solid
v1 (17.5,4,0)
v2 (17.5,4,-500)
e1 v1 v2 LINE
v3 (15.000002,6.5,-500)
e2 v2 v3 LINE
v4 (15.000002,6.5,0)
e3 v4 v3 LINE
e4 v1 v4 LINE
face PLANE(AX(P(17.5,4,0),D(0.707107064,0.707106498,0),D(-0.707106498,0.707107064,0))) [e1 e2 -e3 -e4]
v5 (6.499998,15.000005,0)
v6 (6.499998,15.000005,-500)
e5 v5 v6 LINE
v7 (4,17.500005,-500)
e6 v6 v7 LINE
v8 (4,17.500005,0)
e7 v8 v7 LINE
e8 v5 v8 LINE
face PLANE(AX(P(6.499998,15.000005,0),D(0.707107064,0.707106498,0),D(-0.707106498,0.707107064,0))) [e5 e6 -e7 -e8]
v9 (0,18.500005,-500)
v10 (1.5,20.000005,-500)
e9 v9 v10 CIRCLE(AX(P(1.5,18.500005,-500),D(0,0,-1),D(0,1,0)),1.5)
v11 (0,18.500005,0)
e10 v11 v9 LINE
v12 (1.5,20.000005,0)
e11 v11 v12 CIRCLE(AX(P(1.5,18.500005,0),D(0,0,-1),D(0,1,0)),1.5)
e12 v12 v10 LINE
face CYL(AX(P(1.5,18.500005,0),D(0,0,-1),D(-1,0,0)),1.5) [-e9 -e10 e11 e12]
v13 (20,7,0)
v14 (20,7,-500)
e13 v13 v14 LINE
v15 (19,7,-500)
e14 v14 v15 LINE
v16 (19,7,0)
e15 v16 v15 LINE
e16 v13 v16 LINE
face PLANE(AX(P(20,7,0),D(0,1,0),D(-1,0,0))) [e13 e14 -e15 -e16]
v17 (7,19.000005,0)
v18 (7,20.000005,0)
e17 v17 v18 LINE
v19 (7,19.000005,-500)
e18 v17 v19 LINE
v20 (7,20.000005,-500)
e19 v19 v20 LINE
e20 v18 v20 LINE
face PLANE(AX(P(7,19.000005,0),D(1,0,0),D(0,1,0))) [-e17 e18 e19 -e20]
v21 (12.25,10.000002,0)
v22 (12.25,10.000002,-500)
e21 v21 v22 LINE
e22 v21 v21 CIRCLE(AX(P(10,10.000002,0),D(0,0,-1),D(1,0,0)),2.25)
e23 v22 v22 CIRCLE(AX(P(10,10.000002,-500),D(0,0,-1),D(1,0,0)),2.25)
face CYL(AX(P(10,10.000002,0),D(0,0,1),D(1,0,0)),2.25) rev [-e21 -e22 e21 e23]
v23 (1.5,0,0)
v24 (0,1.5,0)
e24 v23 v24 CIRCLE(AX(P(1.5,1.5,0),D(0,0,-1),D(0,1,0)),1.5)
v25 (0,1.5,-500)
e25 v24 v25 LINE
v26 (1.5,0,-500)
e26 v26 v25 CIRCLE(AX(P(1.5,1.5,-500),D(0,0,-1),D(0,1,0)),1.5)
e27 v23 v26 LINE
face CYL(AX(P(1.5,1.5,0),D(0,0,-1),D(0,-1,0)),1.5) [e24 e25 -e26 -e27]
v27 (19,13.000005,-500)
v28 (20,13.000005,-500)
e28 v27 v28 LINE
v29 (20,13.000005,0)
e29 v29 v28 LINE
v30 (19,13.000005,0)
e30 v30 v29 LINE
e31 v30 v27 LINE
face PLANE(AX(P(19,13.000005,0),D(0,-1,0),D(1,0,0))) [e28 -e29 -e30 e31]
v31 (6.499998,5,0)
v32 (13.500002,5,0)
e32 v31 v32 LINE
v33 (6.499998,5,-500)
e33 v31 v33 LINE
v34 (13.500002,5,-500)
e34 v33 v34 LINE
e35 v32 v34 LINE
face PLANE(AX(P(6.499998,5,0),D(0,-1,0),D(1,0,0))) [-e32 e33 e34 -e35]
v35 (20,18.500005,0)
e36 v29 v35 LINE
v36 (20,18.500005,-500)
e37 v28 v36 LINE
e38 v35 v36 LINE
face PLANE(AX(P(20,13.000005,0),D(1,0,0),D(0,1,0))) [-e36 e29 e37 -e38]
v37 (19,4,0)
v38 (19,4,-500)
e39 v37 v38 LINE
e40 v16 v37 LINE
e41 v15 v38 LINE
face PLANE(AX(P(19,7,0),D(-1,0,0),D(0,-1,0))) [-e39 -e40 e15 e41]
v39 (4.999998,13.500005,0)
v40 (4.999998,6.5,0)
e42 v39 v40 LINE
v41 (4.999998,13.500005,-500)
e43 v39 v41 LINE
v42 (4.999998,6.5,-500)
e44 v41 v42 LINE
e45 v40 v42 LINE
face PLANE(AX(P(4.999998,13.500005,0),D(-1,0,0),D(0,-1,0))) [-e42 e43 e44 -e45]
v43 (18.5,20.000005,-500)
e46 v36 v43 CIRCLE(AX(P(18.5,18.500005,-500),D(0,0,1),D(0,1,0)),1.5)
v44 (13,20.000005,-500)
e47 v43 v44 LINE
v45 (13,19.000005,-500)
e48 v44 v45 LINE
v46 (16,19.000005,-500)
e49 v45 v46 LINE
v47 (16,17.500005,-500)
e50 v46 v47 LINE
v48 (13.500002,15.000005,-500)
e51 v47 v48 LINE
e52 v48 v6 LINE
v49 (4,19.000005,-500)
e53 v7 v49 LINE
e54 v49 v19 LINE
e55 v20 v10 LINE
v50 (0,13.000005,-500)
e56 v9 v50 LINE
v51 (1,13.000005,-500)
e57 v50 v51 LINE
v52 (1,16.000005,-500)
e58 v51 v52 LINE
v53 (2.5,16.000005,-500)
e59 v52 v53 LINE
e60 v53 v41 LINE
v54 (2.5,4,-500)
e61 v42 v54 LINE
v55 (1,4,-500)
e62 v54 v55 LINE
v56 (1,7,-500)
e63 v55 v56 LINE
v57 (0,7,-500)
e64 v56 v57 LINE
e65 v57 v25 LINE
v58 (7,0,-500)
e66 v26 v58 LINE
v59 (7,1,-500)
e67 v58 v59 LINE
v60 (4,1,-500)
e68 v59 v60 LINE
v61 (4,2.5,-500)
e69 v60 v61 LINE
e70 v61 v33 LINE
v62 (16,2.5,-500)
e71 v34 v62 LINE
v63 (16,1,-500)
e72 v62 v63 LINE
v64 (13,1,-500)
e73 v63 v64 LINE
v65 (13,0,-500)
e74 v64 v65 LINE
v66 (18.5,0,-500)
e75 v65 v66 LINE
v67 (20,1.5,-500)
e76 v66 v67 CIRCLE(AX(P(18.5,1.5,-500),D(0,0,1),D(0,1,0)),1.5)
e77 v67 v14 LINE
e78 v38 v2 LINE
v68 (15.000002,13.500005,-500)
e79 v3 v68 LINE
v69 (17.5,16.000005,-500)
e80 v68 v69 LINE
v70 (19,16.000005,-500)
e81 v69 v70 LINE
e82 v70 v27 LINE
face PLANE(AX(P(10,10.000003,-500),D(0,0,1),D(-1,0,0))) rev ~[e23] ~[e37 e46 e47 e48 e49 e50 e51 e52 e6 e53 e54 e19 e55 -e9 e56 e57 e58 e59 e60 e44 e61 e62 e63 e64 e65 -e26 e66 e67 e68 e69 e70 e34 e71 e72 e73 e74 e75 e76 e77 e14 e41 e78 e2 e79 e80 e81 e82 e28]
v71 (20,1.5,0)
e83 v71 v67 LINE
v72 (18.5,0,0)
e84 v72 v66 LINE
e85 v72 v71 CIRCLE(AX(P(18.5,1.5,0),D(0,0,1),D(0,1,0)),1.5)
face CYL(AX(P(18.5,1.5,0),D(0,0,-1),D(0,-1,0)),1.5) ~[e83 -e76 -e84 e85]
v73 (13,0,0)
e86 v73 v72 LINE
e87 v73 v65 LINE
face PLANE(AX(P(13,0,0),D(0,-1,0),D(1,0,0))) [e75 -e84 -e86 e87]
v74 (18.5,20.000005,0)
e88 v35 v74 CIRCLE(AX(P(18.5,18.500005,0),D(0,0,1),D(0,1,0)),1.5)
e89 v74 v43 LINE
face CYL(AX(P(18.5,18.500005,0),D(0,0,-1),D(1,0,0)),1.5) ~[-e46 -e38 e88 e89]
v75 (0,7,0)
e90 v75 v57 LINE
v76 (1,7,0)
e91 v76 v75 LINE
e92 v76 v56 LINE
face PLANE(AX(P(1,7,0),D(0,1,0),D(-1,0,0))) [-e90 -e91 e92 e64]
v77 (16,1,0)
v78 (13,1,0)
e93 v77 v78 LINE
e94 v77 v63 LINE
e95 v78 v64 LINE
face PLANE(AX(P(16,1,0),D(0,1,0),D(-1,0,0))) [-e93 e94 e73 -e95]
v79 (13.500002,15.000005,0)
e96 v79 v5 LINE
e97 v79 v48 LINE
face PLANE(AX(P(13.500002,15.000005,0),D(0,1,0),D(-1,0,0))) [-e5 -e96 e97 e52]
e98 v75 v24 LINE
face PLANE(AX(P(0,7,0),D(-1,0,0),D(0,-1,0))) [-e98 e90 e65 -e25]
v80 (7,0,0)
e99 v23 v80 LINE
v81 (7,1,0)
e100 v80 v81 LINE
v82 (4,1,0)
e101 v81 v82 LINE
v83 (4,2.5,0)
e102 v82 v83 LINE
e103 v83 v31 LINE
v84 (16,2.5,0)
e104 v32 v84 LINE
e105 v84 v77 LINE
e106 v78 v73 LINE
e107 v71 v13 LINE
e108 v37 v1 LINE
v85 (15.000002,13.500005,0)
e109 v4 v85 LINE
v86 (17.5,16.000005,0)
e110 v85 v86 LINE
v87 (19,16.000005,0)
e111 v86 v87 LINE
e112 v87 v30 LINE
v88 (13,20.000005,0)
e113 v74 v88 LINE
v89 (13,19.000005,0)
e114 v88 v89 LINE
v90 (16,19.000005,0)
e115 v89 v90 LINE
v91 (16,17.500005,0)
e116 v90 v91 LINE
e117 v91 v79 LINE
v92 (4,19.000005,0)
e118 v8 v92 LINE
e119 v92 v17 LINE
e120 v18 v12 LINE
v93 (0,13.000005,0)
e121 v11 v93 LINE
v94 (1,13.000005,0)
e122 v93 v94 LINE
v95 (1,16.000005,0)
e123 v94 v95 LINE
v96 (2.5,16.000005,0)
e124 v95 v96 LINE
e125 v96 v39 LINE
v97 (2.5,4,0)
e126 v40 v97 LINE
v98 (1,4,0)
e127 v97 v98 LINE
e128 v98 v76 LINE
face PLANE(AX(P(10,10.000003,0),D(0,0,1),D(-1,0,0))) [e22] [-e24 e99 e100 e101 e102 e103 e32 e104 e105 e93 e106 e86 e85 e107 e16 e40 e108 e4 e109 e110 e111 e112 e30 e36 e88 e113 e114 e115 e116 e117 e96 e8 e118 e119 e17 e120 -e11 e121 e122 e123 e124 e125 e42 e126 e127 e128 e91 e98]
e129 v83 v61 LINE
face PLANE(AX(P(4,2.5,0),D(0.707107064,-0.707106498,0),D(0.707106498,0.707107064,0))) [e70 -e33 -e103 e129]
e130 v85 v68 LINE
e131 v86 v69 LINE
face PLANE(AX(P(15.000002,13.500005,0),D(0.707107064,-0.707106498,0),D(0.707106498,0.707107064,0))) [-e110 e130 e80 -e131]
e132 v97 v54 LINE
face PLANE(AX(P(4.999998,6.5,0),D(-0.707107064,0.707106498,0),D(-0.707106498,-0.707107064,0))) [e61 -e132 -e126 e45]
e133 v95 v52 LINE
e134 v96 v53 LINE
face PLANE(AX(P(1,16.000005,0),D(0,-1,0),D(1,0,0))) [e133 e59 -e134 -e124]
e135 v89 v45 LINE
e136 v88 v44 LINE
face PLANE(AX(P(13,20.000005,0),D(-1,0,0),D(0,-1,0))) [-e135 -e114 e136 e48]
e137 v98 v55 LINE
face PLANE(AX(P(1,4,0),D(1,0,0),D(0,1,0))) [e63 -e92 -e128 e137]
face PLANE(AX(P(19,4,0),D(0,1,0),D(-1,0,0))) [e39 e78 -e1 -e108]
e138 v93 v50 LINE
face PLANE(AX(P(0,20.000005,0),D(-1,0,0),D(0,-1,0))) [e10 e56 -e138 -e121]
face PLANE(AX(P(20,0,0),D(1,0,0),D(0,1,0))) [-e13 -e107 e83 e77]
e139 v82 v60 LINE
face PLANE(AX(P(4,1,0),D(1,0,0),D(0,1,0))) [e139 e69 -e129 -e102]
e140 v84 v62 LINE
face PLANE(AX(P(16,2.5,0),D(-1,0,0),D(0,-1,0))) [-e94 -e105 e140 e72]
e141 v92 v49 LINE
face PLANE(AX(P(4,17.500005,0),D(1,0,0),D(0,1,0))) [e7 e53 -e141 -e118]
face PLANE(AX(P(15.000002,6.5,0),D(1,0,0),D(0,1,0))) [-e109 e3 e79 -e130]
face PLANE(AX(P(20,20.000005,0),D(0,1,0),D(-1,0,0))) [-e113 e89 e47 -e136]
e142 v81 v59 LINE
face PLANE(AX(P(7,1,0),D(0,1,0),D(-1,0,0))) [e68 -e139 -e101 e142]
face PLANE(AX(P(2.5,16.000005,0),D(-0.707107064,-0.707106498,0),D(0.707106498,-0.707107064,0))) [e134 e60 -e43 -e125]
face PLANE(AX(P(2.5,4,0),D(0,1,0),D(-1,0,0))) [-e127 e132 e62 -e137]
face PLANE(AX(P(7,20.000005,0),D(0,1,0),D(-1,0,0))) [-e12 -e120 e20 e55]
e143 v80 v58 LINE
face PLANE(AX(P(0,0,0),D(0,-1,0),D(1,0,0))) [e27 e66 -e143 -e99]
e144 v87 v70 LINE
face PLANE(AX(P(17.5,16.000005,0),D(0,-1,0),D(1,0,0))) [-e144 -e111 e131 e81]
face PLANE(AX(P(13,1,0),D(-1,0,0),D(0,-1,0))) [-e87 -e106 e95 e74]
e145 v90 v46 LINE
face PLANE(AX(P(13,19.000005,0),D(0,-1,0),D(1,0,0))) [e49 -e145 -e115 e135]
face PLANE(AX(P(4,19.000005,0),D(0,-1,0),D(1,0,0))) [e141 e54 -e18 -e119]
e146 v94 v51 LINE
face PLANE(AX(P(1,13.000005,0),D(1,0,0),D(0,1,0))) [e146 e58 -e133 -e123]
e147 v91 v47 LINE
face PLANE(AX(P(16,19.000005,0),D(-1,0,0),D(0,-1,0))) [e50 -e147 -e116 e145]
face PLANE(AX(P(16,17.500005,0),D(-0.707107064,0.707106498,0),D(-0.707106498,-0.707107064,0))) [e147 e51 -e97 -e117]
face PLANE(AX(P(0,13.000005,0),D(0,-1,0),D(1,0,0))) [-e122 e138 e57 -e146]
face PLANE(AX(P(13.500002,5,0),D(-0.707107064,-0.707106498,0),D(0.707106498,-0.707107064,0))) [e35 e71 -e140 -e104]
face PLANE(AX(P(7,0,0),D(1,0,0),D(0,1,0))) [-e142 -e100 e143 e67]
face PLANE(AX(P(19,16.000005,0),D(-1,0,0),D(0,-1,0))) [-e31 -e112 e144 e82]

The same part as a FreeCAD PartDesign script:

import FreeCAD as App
import Part
import Sketcher

V = App.Vector


def edges_at(feature, points):
    """Names of the edges that pass closest to the given points."""
    edges = feature.Shape.Edges
    near = lambda p: min(range(len(edges)), key=lambda i: edges[i].distToShape(Part.Vertex(*p))[0])
    return sorted({f"Edge{near(p) + 1}" for p in points})

doc = App.newDocument("Part")
body = doc.addObject("PartDesign::Body", "Body")

sketch1 = body.newObject("Sketcher::SketchObject", "Sketch")
sketch1.AttachmentSupport = (doc.getObject("XY_Plane"), [""])
sketch1.MapMode = "FlatFace"
sketch1.addGeometry([
    Part.LineSegment(V(7, 1, 0), V(7, 0, 0)),
    Part.LineSegment(V(7, 0, 0), V(0, 0, 0)),
    Part.LineSegment(V(0, 0, 0), V(0, 7, 0)),
    Part.LineSegment(V(0, 7, 0), V(1, 7, 0)),
    Part.LineSegment(V(1, 7, 0), V(1, 4, 0)),
    Part.LineSegment(V(1, 4, 0), V(2.5, 4, 0)),
    Part.LineSegment(V(2.5, 4, 0), V(5, 6.5, 0)),
    Part.LineSegment(V(5, 6.5, 0), V(5, 13.5, 0)),
    Part.LineSegment(V(5, 13.5, 0), V(2.5, 16, 0)),
    Part.LineSegment(V(2.5, 16, 0), V(1, 16, 0)),
    Part.LineSegment(V(1, 16, 0), V(1, 13, 0)),
    Part.LineSegment(V(1, 13, 0), V(0, 13, 0)),
    Part.LineSegment(V(0, 13, 0), V(0, 20, 0)),
    Part.LineSegment(V(0, 20, 0), V(7, 20, 0)),
    Part.LineSegment(V(7, 20, 0), V(7, 19, 0)),
    Part.LineSegment(V(7, 19, 0), V(4, 19, 0)),
    Part.LineSegment(V(4, 19, 0), V(4, 17.5, 0)),
    Part.LineSegment(V(4, 17.5, 0), V(6.5, 15, 0)),
    Part.LineSegment(V(6.5, 15, 0), V(13.5, 15, 0)),
    Part.LineSegment(V(13.5, 15, 0), V(16, 17.5, 0)),
    Part.LineSegment(V(16, 17.5, 0), V(16, 19, 0)),
    Part.LineSegment(V(16, 19, 0), V(13, 19, 0)),
    Part.LineSegment(V(13, 19, 0), V(13, 20, 0)),
    Part.LineSegment(V(13, 20, 0), V(20, 20, 0)),
    Part.LineSegment(V(20, 20, 0), V(20, 13, 0)),
    Part.LineSegment(V(20, 13, 0), V(19, 13, 0)),
    Part.LineSegment(V(19, 13, 0), V(19, 16, 0)),
    Part.LineSegment(V(19, 16, 0), V(17.5, 16, 0)),
    Part.LineSegment(V(17.5, 16, 0), V(15, 13.5, 0)),
    Part.LineSegment(V(15, 13.5, 0), V(15, 6.5, 0)),
    Part.LineSegment(V(15, 6.5, 0), V(17.5, 4, 0)),
    Part.LineSegment(V(17.5, 4, 0), V(19, 4, 0)),
    Part.LineSegment(V(19, 4, 0), V(19, 7, 0)),
    Part.LineSegment(V(19, 7, 0), V(20, 7, 0)),
    Part.LineSegment(V(20, 7, 0), V(20, 0, 0)),
    Part.LineSegment(V(20, 0, 0), V(13, 0, 0)),
    Part.LineSegment(V(13, 0, 0), V(13, 1, 0)),
    Part.LineSegment(V(13, 1, 0), V(16, 1, 0)),
    Part.LineSegment(V(16, 1, 0), V(16, 2.5, 0)),
    Part.LineSegment(V(16, 2.5, 0), V(13.5, 5, 0)),
    Part.LineSegment(V(13.5, 5, 0), V(6.5, 5, 0)),
    Part.LineSegment(V(6.5, 5, 0), V(4, 2.5, 0)),
    Part.LineSegment(V(4, 2.5, 0), V(4, 1, 0)),
    Part.LineSegment(V(4, 1, 0), V(7, 1, 0)),
    Part.Circle(V(10, 10, 0), V(0, 0, 1), 2.2),
], False)
sketch1.addConstraint([
    Sketcher.Constraint("Coincident", 0, 2, 1, 1),
    Sketcher.Constraint("Coincident", 1, 2, 2, 1),
    Sketcher.Constraint("Coincident", 2, 2, 3, 1),
    Sketcher.Constraint("Coincident", 3, 2, 4, 1),
    Sketcher.Constraint("Coincident", 4, 2, 5, 1),
    Sketcher.Constraint("Coincident", 5, 2, 6, 1),
    Sketcher.Constraint("Coincident", 6, 2, 7, 1),
    Sketcher.Constraint("Coincident", 7, 2, 8, 1),
    Sketcher.Constraint("Coincident", 8, 2, 9, 1),
    Sketcher.Constraint("Coincident", 9, 2, 10, 1),
    Sketcher.Constraint("Coincident", 10, 2, 11, 1),
    Sketcher.Constraint("Coincident", 11, 2, 12, 1),
    Sketcher.Constraint("Coincident", 12, 2, 13, 1),
    Sketcher.Constraint("Coincident", 13, 2, 14, 1),
    Sketcher.Constraint("Coincident", 14, 2, 15, 1),
    Sketcher.Constraint("Coincident", 15, 2, 16, 1),
    Sketcher.Constraint("Coincident", 16, 2, 17, 1),
    Sketcher.Constraint("Coincident", 17, 2, 18, 1),
    Sketcher.Constraint("Coincident", 18, 2, 19, 1),
    Sketcher.Constraint("Coincident", 19, 2, 20, 1),
    Sketcher.Constraint("Coincident", 20, 2, 21, 1),
    Sketcher.Constraint("Coincident", 21, 2, 22, 1),
    Sketcher.Constraint("Coincident", 22, 2, 23, 1),
    Sketcher.Constraint("Coincident", 23, 2, 24, 1),
    Sketcher.Constraint("Coincident", 24, 2, 25, 1),
    Sketcher.Constraint("Coincident", 25, 2, 26, 1),
    Sketcher.Constraint("Coincident", 26, 2, 27, 1),
    Sketcher.Constraint("Coincident", 27, 2, 28, 1),
    Sketcher.Constraint("Coincident", 28, 2, 29, 1),
    Sketcher.Constraint("Coincident", 29, 2, 30, 1),
    Sketcher.Constraint("Coincident", 30, 2, 31, 1),
    Sketcher.Constraint("Coincident", 31, 2, 32, 1),
    Sketcher.Constraint("Coincident", 32, 2, 33, 1),
    Sketcher.Constraint("Coincident", 33, 2, 34, 1),
    Sketcher.Constraint("Coincident", 34, 2, 35, 1),
    Sketcher.Constraint("Coincident", 35, 2, 36, 1),
    Sketcher.Constraint("Coincident", 36, 2, 37, 1),
    Sketcher.Constraint("Coincident", 37, 2, 38, 1),
    Sketcher.Constraint("Coincident", 38, 2, 39, 1),
    Sketcher.Constraint("Coincident", 39, 2, 40, 1),
    Sketcher.Constraint("Coincident", 40, 2, 41, 1),
    Sketcher.Constraint("Coincident", 41, 2, 42, 1),
    Sketcher.Constraint("Coincident", 42, 2, 43, 1),
    Sketcher.Constraint("Coincident", 43, 2, 0, 1),
    Sketcher.Constraint("Vertical", 0),
    Sketcher.Constraint("Horizontal", 1),
    Sketcher.Constraint("Vertical", 2),
    Sketcher.Constraint("Horizontal", 3),
    Sketcher.Constraint("Vertical", 4),
    Sketcher.Constraint("Horizontal", 5),
    Sketcher.Constraint("Vertical", 7),
    Sketcher.Constraint("Horizontal", 9),
    Sketcher.Constraint("Vertical", 10),
    Sketcher.Constraint("Horizontal", 11),
    Sketcher.Constraint("Vertical", 12),
    Sketcher.Constraint("Horizontal", 13),
    Sketcher.Constraint("Vertical", 14),
    Sketcher.Constraint("Horizontal", 15),
    Sketcher.Constraint("Vertical", 16),
    Sketcher.Constraint("Horizontal", 18),
    Sketcher.Constraint("Vertical", 20),
    Sketcher.Constraint("Horizontal", 21),
    Sketcher.Constraint("Vertical", 22),
    Sketcher.Constraint("Horizontal", 23),
    Sketcher.Constraint("Vertical", 24),
    Sketcher.Constraint("Horizontal", 25),
    Sketcher.Constraint("Vertical", 26),
    Sketcher.Constraint("Horizontal", 27),
    Sketcher.Constraint("Vertical", 29),
    Sketcher.Constraint("Horizontal", 31),
    Sketcher.Constraint("Vertical", 32),
    Sketcher.Constraint("Horizontal", 33),
    Sketcher.Constraint("Vertical", 34),
    Sketcher.Constraint("Horizontal", 35),
    Sketcher.Constraint("Vertical", 36),
    Sketcher.Constraint("Horizontal", 37),
    Sketcher.Constraint("Vertical", 38),
    Sketcher.Constraint("Horizontal", 40),
    Sketcher.Constraint("Vertical", 42),
    Sketcher.Constraint("Horizontal", 43),
    Sketcher.Constraint("Coincident", 1, 2, -1, 1),
    Sketcher.Constraint("PointOnObject", 11, 2, -2),
    Sketcher.Constraint("PointOnObject", 34, 2, -1),
    Sketcher.Constraint("Perpendicular", 6, 8),
    Sketcher.Constraint("Parallel", 8, 17),
    Sketcher.Constraint("Perpendicular", 17, 19),
    Sketcher.Constraint("Parallel", 19, 28),
    Sketcher.Constraint("Perpendicular", 28, 30),
    Sketcher.Constraint("Parallel", 30, 39),
    Sketcher.Constraint("Perpendicular", 39, 41),
    Sketcher.Constraint("Horizontal", 16, 2, 19, 2),
    Sketcher.Constraint("Horizontal", 15, 2, 20, 2),
    Sketcher.Constraint("Horizontal", 13, 2, 22, 2),
    Sketcher.Constraint("Horizontal", 11, 2, 24, 2),
    Sketcher.Constraint("Horizontal", 9, 2, 26, 2),
    Sketcher.Constraint("Horizontal", 7, 2, 28, 2),
    Sketcher.Constraint("Horizontal", 6, 2, 29, 2),
    Sketcher.Constraint("Horizontal", 5, 2, 30, 2),
    Sketcher.Constraint("Horizontal", 3, 2, 32, 2),
    Sketcher.Constraint("Horizontal", 38, 2, 41, 2),
    Sketcher.Constraint("Horizontal", 37, 2, 42, 2),
    Sketcher.Constraint("Vertical", 5, 2, 8, 2),
    Sketcher.Constraint("Vertical", 4, 2, 9, 2),
    Sketcher.Constraint("Vertical", 0, 2, 13, 2),
    Sketcher.Constraint("Vertical", 27, 2, 30, 2),
    Sketcher.Constraint("Vertical", 26, 2, 31, 2),
    Sketcher.Constraint("Vertical", 24, 2, 33, 2),
    Sketcher.Constraint("Vertical", 22, 2, 35, 2),
    Sketcher.Constraint("Vertical", 20, 2, 37, 2),
    Sketcher.Constraint("Vertical", 18, 2, 39, 2),
    Sketcher.Constraint("Vertical", 17, 2, 40, 2),
    Sketcher.Constraint("Equal", 15, 21),
    Sketcher.Constraint("Equal", 13, 23),
    Sketcher.Constraint("Equal", 11, 25),
    Sketcher.Constraint("Equal", 9, 27),
    Sketcher.Constraint("Equal", 33, 0),
    Sketcher.Constraint("Equal", 35, 2),
    Sketcher.Constraint("Equal", 43, 4),
    Sketcher.Constraint("Equal", 40, 7),
    Sketcher.Constraint("Equal", 4, 10),
    Sketcher.Constraint("Equal", 2, 12),
    Sketcher.Constraint("Equal", 0, 14),
    Sketcher.Constraint("Equal", 31, 16),
    Sketcher.Constraint("Equal", 20, 38),
    Sketcher.Constraint("Equal", 8, 17),
    Sketcher.Constraint("Diameter", 44, 4.5),
    Sketcher.Constraint("DistanceX", 1, 2, 1, 1, 7.0),
    Sketcher.Constraint("DistanceX", 3, 1, 3, 2, 1.0),
    Sketcher.Constraint("DistanceX", 15, 2, 15, 1, 3.0),
    Sketcher.Constraint("DistanceX", 5, 1, 5, 2, 1.5),
    Sketcher.Constraint("DistanceX", -1, 1, 44, 3, 10.0),
    Sketcher.Constraint("DistanceX", -1, 1, 19, 2, 16.0),
    Sketcher.Constraint("DistanceY", -1, 1, 39, 2, 5.0),
    Sketcher.Constraint("DistanceY", -1, 1, 44, 3, 10.000002),
])
pad1 = body.newObject("PartDesign::Pad", "Pad")
pad1.Profile = sketch1
pad1.Length = 500
pad1.Reversed = True
doc.recompute()

fillet = body.newObject("PartDesign::Fillet", "Fillet")
fillet.Base = (pad1, edges_at(pad1, [
    (20, 20, -250),
    (20, 0, -250),
    (0, 20, -250),
    (0, 0, -250),
]))
fillet.Radius = 1.5

doc.recompute()
